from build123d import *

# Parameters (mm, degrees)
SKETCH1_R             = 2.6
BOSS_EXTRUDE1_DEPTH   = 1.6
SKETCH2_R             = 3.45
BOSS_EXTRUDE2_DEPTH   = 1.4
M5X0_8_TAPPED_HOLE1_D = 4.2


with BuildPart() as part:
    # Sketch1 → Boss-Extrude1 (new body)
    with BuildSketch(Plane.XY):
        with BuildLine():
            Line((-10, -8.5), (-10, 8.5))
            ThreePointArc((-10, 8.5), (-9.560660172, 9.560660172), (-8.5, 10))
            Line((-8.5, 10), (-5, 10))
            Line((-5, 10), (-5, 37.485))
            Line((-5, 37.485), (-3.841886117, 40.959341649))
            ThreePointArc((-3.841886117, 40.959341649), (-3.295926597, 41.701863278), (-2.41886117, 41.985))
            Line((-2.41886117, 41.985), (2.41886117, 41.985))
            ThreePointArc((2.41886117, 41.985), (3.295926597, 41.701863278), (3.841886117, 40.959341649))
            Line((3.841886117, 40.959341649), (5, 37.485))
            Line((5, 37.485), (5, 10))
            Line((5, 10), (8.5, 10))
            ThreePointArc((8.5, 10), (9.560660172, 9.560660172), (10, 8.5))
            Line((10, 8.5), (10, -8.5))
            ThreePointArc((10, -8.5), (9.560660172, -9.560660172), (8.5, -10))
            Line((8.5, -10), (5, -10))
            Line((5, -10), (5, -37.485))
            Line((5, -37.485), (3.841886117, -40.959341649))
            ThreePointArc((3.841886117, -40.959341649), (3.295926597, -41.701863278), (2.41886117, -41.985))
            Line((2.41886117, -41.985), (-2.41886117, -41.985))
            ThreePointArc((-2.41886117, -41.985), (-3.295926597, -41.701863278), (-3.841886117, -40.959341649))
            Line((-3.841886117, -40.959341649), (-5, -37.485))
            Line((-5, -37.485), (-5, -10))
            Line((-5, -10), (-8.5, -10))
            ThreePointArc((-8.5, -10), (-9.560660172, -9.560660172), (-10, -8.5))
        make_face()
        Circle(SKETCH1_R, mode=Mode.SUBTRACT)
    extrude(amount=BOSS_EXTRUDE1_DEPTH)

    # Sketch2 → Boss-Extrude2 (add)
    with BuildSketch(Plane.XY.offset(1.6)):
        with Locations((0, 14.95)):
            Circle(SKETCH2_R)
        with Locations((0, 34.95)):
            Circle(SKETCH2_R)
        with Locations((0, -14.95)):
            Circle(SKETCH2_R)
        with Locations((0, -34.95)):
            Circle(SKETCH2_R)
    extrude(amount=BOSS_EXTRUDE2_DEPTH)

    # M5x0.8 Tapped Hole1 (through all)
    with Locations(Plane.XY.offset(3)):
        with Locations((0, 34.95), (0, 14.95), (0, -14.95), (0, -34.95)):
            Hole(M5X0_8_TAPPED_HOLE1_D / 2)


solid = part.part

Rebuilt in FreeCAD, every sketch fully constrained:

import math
import FreeCAD as App
import Part
import Sketcher

V = App.Vector
Q = App.Units.Quantity

doc = App.newDocument("Part")
body = doc.addObject("PartDesign::Body", "Body")

sketch1 = doc.addObject("Sketcher::SketchObject", "Sketch")
body.addObject(sketch1)
sketch1.AttachmentSupport = (doc.XY_Plane, [""])
sketch1.MapMode = "FlatFace"
sketch1.addGeometry(Part.LineSegment(V(-10, 8.5, 0), V(-10, -8.5, 0)), False)
sketch1.addGeometry(Part.ArcOfCircle(Part.Circle(V(-8.5, -8.5, 0), V(0, 0, 1), 1.5), math.radians(180), math.radians(270)), False)
sketch1.addGeometry(Part.LineSegment(V(-8.5, -10, 0), V(-5, -10, 0)), False)
sketch1.addGeometry(Part.LineSegment(V(-5, -10, 0), V(-5, -37.485, 0)), False)
sketch1.addGeometry(Part.LineSegment(V(-5, -37.485, 0), V(-3.841886, -40.959342, 0)), False)
sketch1.addGeometry(Part.ArcOfCircle(Part.Circle(V(-2.418861, -40.485, 0), V(0, 0, 1), 1.5), math.radians(-161.565051), math.radians(-90)), False)
sketch1.addGeometry(Part.LineSegment(V(-2.418861, -41.985, 0), V(2.418861, -41.985, 0)), False)
sketch1.addGeometry(Part.ArcOfCircle(Part.Circle(V(2.418861, -40.485, 0), V(0, 0, 1), 1.5), math.radians(-90), math.radians(-18.434949)), False)
sketch1.addGeometry(Part.LineSegment(V(3.841886, -40.959342, 0), V(5, -37.485, 0)), False)
sketch1.addGeometry(Part.LineSegment(V(5, -37.485, 0), V(5, -10, 0)), False)
sketch1.addGeometry(Part.LineSegment(V(5, -10, 0), V(8.5, -10, 0)), False)
sketch1.addGeometry(Part.ArcOfCircle(Part.Circle(V(8.5, -8.5, 0), V(0, 0, 1), 1.5), math.radians(-90), math.radians(0)), False)
sketch1.addGeometry(Part.LineSegment(V(10, -8.5, 0), V(10, 8.5, 0)), False)
sketch1.addGeometry(Part.ArcOfCircle(Part.Circle(V(8.5, 8.5, 0), V(0, 0, 1), 1.5), math.radians(0), math.radians(90)), False)
sketch1.addGeometry(Part.LineSegment(V(8.5, 10, 0), V(5, 10, 0)), False)
sketch1.addGeometry(Part.LineSegment(V(5, 10, 0), V(5, 37.485, 0)), False)
sketch1.addGeometry(Part.LineSegment(V(5, 37.485, 0), V(3.841886, 40.959342, 0)), False)
sketch1.addGeometry(Part.ArcOfCircle(Part.Circle(V(2.418861, 40.485, 0), V(0, 0, 1), 1.5), math.radians(18.434949), math.radians(90)), False)
sketch1.addGeometry(Part.LineSegment(V(2.418861, 41.985, 0), V(-2.418861, 41.985, 0)), False)
sketch1.addGeometry(Part.ArcOfCircle(Part.Circle(V(-2.418861, 40.485, 0), V(0, 0, 1), 1.5), math.radians(90), math.radians(161.565051)), False)
sketch1.addGeometry(Part.LineSegment(V(-3.841886, 40.959342, 0), V(-5, 37.485, 0)), False)
sketch1.addGeometry(Part.LineSegment(V(-5, 37.485, 0), V(-5, 10, 0)), False)
sketch1.addGeometry(Part.LineSegment(V(-5, 10, 0), V(-8.5, 10, 0)), False)
sketch1.addGeometry(Part.ArcOfCircle(Part.Circle(V(-8.5, 8.5, 0), V(0, 0, 1), 1.5), math.radians(90), math.radians(180)), False)
sketch1.addGeometry(Part.Circle(V(0, 0, 0), V(0, 0, 1), 2.6), False)
sketch1.addConstraint(Sketcher.Constraint("Tangent", 0, 2, 1, 1))
sketch1.addConstraint(Sketcher.Constraint("Tangent", 1, 2, 2, 1))
sketch1.addConstraint(Sketcher.Constraint("Coincident", 2, 2, 3, 1))
sketch1.addConstraint(Sketcher.Constraint("Coincident", 3, 2, 4, 1))
sketch1.addConstraint(Sketcher.Constraint("Tangent", 4, 2, 5, 1))
sketch1.addConstraint(Sketcher.Constraint("Tangent", 5, 2, 6, 1))
sketch1.addConstraint(Sketcher.Constraint("Tangent", 6, 2, 7, 1))
sketch1.addConstraint(Sketcher.Constraint("Tangent", 7, 2, 8, 1))
sketch1.addConstraint(Sketcher.Constraint("Coincident", 8, 2, 9, 1))
sketch1.addConstraint(Sketcher.Constraint("Coincident", 9, 2, 10, 1))
sketch1.addConstraint(Sketcher.Constraint("Tangent", 10, 2, 11, 1))
sketch1.addConstraint(Sketcher.Constraint("Tangent", 11, 2, 12, 1))
sketch1.addConstraint(Sketcher.Constraint("Tangent", 12, 2, 13, 1))
sketch1.addConstraint(Sketcher.Constraint("Tangent", 13, 2, 14, 1))
sketch1.addConstraint(Sketcher.Constraint("Coincident", 14, 2, 15, 1))
sketch1.addConstraint(Sketcher.Constraint("Coincident", 15, 2, 16, 1))
sketch1.addConstraint(Sketcher.Constraint("Tangent", 16, 2, 17, 1))
sketch1.addConstraint(Sketcher.Constraint("Tangent", 17, 2, 18, 1))
sketch1.addConstraint(Sketcher.Constraint("Tangent", 18, 2, 19, 1))
sketch1.addConstraint(Sketcher.Constraint("Tangent", 19, 2, 20, 1))
sketch1.addConstraint(Sketcher.Constraint("Coincident", 20, 2, 21, 1))
sketch1.addConstraint(Sketcher.Constraint("Coincident", 21, 2, 22, 1))
sketch1.addConstraint(Sketcher.Constraint("Tangent", 22, 2, 23, 1))
sketch1.addConstraint(Sketcher.Constraint("Tangent", 23, 2, 0, 1))
sketch1.addConstraint(Sketcher.Constraint("Vertical", 0))
sketch1.addConstraint(Sketcher.Constraint("Horizontal", 2))
sketch1.addConstraint(Sketcher.Constraint("Vertical", 3))
sketch1.addConstraint(Sketcher.Constraint("Horizontal", 6))
sketch1.addConstraint(Sketcher.Constraint("Vertical", 9))
sketch1.addConstraint(Sketcher.Constraint("Horizontal", 10))
sketch1.addConstraint(Sketcher.Constraint("Vertical", 12))
sketch1.addConstraint(Sketcher.Constraint("Horizontal", 14))
sketch1.addConstraint(Sketcher.Constraint("Vertical", 15))
sketch1.addConstraint(Sketcher.Constraint("Horizontal", 18))
sketch1.addConstraint(Sketcher.Constraint("Vertical", 21))
sketch1.addConstraint(Sketcher.Constraint("Horizontal", 22))
sketch1.addConstraint(Sketcher.Constraint("Coincident", 24, 3, -1, 1))
sketch1.addConstraint(Sketcher.Constraint("Equal", 1, 5))
sketch1.addConstraint(Sketcher.Constraint("Equal", 5, 7))
sketch1.addConstraint(Sketcher.Constraint("Equal", 7, 11))
sketch1.addConstraint(Sketcher.Constraint("Equal", 11, 13))
sketch1.addConstraint(Sketcher.Constraint("Equal", 13, 17))
sketch1.addConstraint(Sketcher.Constraint("Equal", 17, 19))
sketch1.addConstraint(Sketcher.Constraint("Equal", 19, 23))
sketch1.addConstraint(Sketcher.Constraint("Symmetric", 1, 3, 13, 3, -1, 1))
sketch1.addConstraint(Sketcher.Constraint("Symmetric", 5, 3, 17, 3, -1, 1))
sketch1.addConstraint(Sketcher.Constraint("Symmetric", 3, 2, 15, 2, -1, 1))
sketch1.addConstraint(Sketcher.Constraint("Symmetric", 7, 2, 19, 2, -1, 1))
sketch1.addConstraint(Sketcher.Constraint("Symmetric", 9, 2, 21, 2, -1, 1))
sketch1.addConstraint(Sketcher.Constraint("Symmetric", 4, 2, 7, 2, -2))
sketch1.addConstraint(Sketcher.Constraint("Symmetric", 2, 2, 9, 2, -2))
sketch1.addConstraint(Sketcher.Constraint("Diameter", 24, Q("5.2 mm")))
sketch1.addConstraint(Sketcher.Constraint("Radius", 1, Q("1.5 mm")))
sketch1.addConstraint(Sketcher.Constraint("DistanceY", 0, 2, 0, 1, Q("17 mm")))
sketch1.addConstraint(Sketcher.Constraint("DistanceX", 2, 1, 2, 2, Q("3.5 mm")))
sketch1.addConstraint(Sketcher.Constraint("DistanceX", 0, 2, -1, 1, Q("10 mm")))
sketch1.addConstraint(Sketcher.Constraint("DistanceY", 5, 3, 3, 2, Q("3 mm")))
sketch1.addConstraint(Sketcher.Constraint("DistanceY", 3, 2, 3, 1, Q("27.485 mm")))
sketch1.addConstraint(Sketcher.Constraint("DistanceX", 6, 1, 6, 2, Q("4.837722 mm")))
pad1 = doc.addObject("PartDesign::Pad", "Pad")
body.addObject(pad1)
pad1.Profile = sketch1
pad1.Length = 1.6

sketch2 = doc.addObject("Sketcher::SketchObject", "Sketch001")
body.addObject(sketch2)
sketch2.AttachmentSupport = (doc.XY_Plane, [""])
sketch2.MapMode = "FlatFace"
sketch2.AttachmentOffset = App.Placement(V(0, 0, 1.6), App.Rotation())
sketch2.addGeometry(Part.Circle(V(0, 14.95, 0), V(0, 0, 1), 3.45), False)
sketch2.addGeometry(Part.Circle(V(0, 34.95, 0), V(0, 0, 1), 3.45), False)
sketch2.addGeometry(Part.Circle(V(0, -14.95, 0), V(0, 0, 1), 3.45), False)
sketch2.addGeometry(Part.Circle(V(0, -34.95, 0), V(0, 0, 1), 3.45), False)
sketch2.addConstraint(Sketcher.Constraint("Equal", 0, 1))
sketch2.addConstraint(Sketcher.Constraint("Equal", 1, 2))
sketch2.addConstraint(Sketcher.Constraint("Equal", 2, 3))
sketch2.addConstraint(Sketcher.Constraint("Symmetric", 0, 3, 2, 3, -1, 1))
sketch2.addConstraint(Sketcher.Constraint("Symmetric", 1, 3, 3, 3, -1, 1))
sketch2.addConstraint(Sketcher.Constraint("PointOnObject", 0, 3, -2))
sketch2.addConstraint(Sketcher.Constraint("PointOnObject", 1, 3, -2))
sketch2.addConstraint(Sketcher.Constraint("Diameter", 0, Q("6.9 mm")))
sketch2.addConstraint(Sketcher.Constraint("DistanceY", 0, 3, 1, 3, Q("20 mm")))
sketch2.addConstraint(Sketcher.Constraint("DistanceY", 2, 3, 0, 3, Q("29.9 mm")))
pad2 = doc.addObject("PartDesign::Pad", "Pad001")
body.addObject(pad2)
pad2.Profile = sketch2
pad2.Length = 1.4

sketch3 = doc.addObject("Sketcher::SketchObject", "Sketch002")
body.addObject(sketch3)
sketch3.AttachmentSupport = (doc.XY_Plane, [""])
sketch3.MapMode = "FlatFace"
sketch3.AttachmentOffset = App.Placement(V(0, 0, 3), App.Rotation())
sketch3.addGeometry(Part.Circle(V(0, 34.95, 0), V(0, 0, 1), 2.1), False)
sketch3.addGeometry(Part.Circle(V(0, 14.95, 0), V(0, 0, 1), 2.1), False)
sketch3.addGeometry(Part.Circle(V(0, -14.95, 0), V(0, 0, 1), 2.1), False)
sketch3.addGeometry(Part.Circle(V(0, -34.95, 0), V(0, 0, 1), 2.1), False)
sketch3.addConstraint(Sketcher.Constraint("Equal", 0, 1))
sketch3.addConstraint(Sketcher.Constraint("Equal", 1, 2))
sketch3.addConstraint(Sketcher.Constraint("Equal", 2, 3))
sketch3.addConstraint(Sketcher.Constraint("Symmetric", 1, 3, 2, 3, -1, 1))
sketch3.addConstraint(Sketcher.Constraint("Symmetric", 0, 3, 3, 3, -1, 1))
sketch3.addConstraint(Sketcher.Constraint("PointOnObject", 0, 3, -2))
sketch3.addConstraint(Sketcher.Constraint("PointOnObject", 1, 3, -2))
sketch3.addConstraint(Sketcher.Constraint("Diameter", 0, Q("4.2 mm")))
sketch3.addConstraint(Sketcher.Constraint("DistanceY", 1, 3, 0, 3, Q("20 mm")))
sketch3.addConstraint(Sketcher.Constraint("DistanceY", 2, 3, 1, 3, Q("29.9 mm")))
doc.recompute()
hole = doc.addObject("PartDesign::Hole", "Hole")
body.addObject(hole)
hole.Profile = sketch3
hole.ThreadType = "None"
hole.Diameter = 4.2
hole.DepthType = "ThroughAll"

doc.recompute()
